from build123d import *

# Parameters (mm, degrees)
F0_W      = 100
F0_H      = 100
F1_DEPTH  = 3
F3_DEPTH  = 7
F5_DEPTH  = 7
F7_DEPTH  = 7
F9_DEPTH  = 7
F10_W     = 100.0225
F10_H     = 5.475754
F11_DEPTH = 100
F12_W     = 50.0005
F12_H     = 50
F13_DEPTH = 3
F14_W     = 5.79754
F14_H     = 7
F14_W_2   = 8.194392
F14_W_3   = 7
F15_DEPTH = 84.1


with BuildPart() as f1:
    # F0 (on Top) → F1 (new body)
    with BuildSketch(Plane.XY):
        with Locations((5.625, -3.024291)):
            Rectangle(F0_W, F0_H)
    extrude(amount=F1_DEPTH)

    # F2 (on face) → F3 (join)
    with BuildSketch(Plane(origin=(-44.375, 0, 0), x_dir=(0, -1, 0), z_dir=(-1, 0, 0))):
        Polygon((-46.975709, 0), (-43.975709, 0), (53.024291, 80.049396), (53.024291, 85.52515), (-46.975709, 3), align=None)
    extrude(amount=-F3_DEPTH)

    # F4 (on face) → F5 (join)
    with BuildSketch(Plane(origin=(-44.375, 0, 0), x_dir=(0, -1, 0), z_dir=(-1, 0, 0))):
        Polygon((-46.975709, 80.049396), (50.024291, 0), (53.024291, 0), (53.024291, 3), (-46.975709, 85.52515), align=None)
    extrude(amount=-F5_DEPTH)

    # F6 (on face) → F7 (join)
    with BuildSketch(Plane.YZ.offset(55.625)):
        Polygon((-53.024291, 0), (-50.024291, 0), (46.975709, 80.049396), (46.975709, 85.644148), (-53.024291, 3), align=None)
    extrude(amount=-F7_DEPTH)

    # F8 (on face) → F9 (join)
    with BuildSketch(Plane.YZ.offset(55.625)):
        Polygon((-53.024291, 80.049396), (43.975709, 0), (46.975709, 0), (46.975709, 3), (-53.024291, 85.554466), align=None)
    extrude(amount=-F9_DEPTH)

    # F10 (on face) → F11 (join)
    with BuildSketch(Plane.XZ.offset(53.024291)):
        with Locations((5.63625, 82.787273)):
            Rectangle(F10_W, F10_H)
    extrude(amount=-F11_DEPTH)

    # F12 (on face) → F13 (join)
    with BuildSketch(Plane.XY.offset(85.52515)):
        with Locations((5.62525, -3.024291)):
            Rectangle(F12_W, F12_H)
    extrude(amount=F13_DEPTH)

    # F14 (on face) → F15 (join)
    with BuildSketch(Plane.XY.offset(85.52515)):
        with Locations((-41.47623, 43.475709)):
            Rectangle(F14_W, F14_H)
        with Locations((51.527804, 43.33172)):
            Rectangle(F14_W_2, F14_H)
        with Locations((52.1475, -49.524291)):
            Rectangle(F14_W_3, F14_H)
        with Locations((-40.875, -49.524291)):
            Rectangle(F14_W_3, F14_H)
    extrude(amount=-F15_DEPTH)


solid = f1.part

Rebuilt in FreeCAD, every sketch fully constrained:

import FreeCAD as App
import Part
import Sketcher
from FreeCAD import Vector


def add_polygon(sketch, points):
    """Adds a closed chain of lines whose ends are joined by coincident constraints."""
    first, n = sketch.GeometryCount, len(points)
    for a, b in zip(points, points[1:] + points[:1]):
        sketch.addGeometry(Part.LineSegment(App.Vector(*a, 0), App.Vector(*b, 0)), False)
    for i in range(n):
        sketch.addConstraint(Sketcher.Constraint("Coincident", first + i, 2, first + (i + 1) % n, 1))

doc = App.newDocument("Part")
body = doc.addObject("PartDesign::Body", "Body")

sketch1 = body.newObject("Sketcher::SketchObject", "Sketch")
sketch1.AttachmentSupport = (doc.getObject("XY_Plane"), [""])
sketch1.MapMode = "FlatFace"
add_polygon(sketch1, [(-44, 47), (-44, -53), (56, -53), (56, 47)])
sketch1.addConstraint([
    Sketcher.Constraint("Vertical", 0),
    Sketcher.Constraint("Horizontal", 1),
    Sketcher.Constraint("Vertical", 2),
    Sketcher.Constraint("Horizontal", 3),
    Sketcher.Constraint("Equal", 3, 0),
    Sketcher.Constraint("DistanceX", 1, 1, 1, 2, 100.0),
    Sketcher.Constraint("DistanceX", 0, 2, -1, 1, 44.375),
    Sketcher.Constraint("DistanceY", 0, 2, -1, 1, 53.024291),
])
pad1 = body.newObject("PartDesign::Pad", "Pad")
pad1.Profile = sketch1
pad1.Length = 3

sketch2 = body.newObject("Sketcher::SketchObject", "Sketch001")
sketch2.AttachmentSupport = (doc.getObject("YZ_Plane"), [""])
sketch2.MapMode = "FlatFace"
sketch2.AttachmentOffset = App.Placement(Vector(0, 0, -44.375), App.Rotation())
add_polygon(sketch2, [(47, 0), (44, 0), (-53, 80), (-53, 85.5), (47, 3)])
sketch2.addConstraint([
    Sketcher.Constraint("Horizontal", 0),
    Sketcher.Constraint("Vertical", 2),
    Sketcher.Constraint("Vertical", 4),
    Sketcher.Constraint("PointOnObject", 0, 2, -1),
    Sketcher.Constraint("Parallel", 1, 3),
    Sketcher.Constraint("Equal", 0, 4),
    Sketcher.Constraint("DistanceX", 0, 2, 0, 1, 3.0),
    Sketcher.Constraint("DistanceX", 1, 2, 0, 2, 97.0),
    Sketcher.Constraint("Distance", 1, 125.765281),
    Sketcher.Constraint("DistanceX", -1, 1, 0, 2, 43.975709),
])
pad2 = body.newObject("PartDesign::Pad", "Pad001")
pad2.Profile = sketch2
pad2.Length = 7

sketch3 = body.newObject("Sketcher::SketchObject", "Sketch002")
sketch3.AttachmentSupport = (doc.getObject("YZ_Plane"), [""])
sketch3.MapMode = "FlatFace"
sketch3.AttachmentOffset = App.Placement(Vector(0, 0, -44.375), App.Rotation())
add_polygon(sketch3, [(47, 80), (-50, 0), (-53, 0), (-53, 3), (47, 85.5)])
sketch3.addConstraint([
    Sketcher.Constraint("Horizontal", 1),
    Sketcher.Constraint("Vertical", 2),
    Sketcher.Constraint("Vertical", 4),
    Sketcher.Constraint("PointOnObject", 0, 2, -1),
    Sketcher.Constraint("Parallel", 0, 3),
    Sketcher.Constraint("Equal", 1, 2),
    Sketcher.Constraint("DistanceX", 1, 2, 1, 1, 3.0),
    Sketcher.Constraint("DistanceX", 0, 2, 3, 2, 97.0),
    Sketcher.Constraint("Distance", 0, 125.765281),
    Sketcher.Constraint("DistanceX", 0, 2, -1, 1, 50.024291),
])
pad3 = body.newObject("PartDesign::Pad", "Pad002")
pad3.Profile = sketch3
pad3.Length = 7

sketch4 = body.newObject("Sketcher::SketchObject", "Sketch003")
sketch4.AttachmentSupport = (doc.getObject("YZ_Plane"), [""])
sketch4.MapMode = "FlatFace"
sketch4.AttachmentOffset = App.Placement(Vector(0, 0, 55.625), App.Rotation())
add_polygon(sketch4, [(-53, 0), (-50, 0), (47, 80), (47, 85.6), (-53, 3)])
sketch4.addConstraint([
    Sketcher.Constraint("Horizontal", 0),
    Sketcher.Constraint("Vertical", 2),
    Sketcher.Constraint("Vertical", 4),
    Sketcher.Constraint("PointOnObject", 0, 2, -1),
    Sketcher.Constraint("Equal", 0, 4),
    Sketcher.Constraint("DistanceX", 0, 1, 0, 2, 3.0),
    Sketcher.Constraint("DistanceX", 0, 2, 1, 2, 97.0),
    Sketcher.Constraint("DistanceY", 2, 1, 2, 2, 5.594752),
    Sketcher.Constraint("Distance", 1, 125.765281),
    Sketcher.Constraint("DistanceX", 0, 2, -1, 1, 50.024291),
])
pad4 = body.newObject("PartDesign::Pad", "Pad003")
pad4.Profile = sketch4
pad4.Length = 7
pad4.Reversed = True

sketch5 = body.newObject("Sketcher::SketchObject", "Sketch004")
sketch5.AttachmentSupport = (doc.getObject("YZ_Plane"), [""])
sketch5.MapMode = "FlatFace"
sketch5.AttachmentOffset = App.Placement(Vector(0, 0, 55.625), App.Rotation())
add_polygon(sketch5, [(-53, 80), (44, 0), (47, 0), (47, 3), (-53, 85.6)])
sketch5.addConstraint([
    Sketcher.Constraint("Horizontal", 1),
    Sketcher.Constraint("Vertical", 2),
    Sketcher.Constraint("Vertical", 4),
    Sketcher.Constraint("PointOnObject", 0, 2, -1),
    Sketcher.Constraint("Equal", 1, 2),
    Sketcher.Constraint("DistanceX", 1, 1, 1, 2, 3.0),
    Sketcher.Constraint("DistanceX", 3, 2, 0, 2, 97.0),
    Sketcher.Constraint("DistanceY", 4, 2, 4, 1, 5.50507),
    Sketcher.Constraint("Distance", 0, 125.765281),
    Sketcher.Constraint("DistanceX", -1, 1, 0, 2, 43.975709),
])
pad5 = body.newObject("PartDesign::Pad", "Pad004")
pad5.Profile = sketch5
pad5.Length = 7
pad5.Reversed = True

sketch6 = body.newObject("Sketcher::SketchObject", "Sketch005")
sketch6.AttachmentSupport = (doc.getObject("XZ_Plane"), [""])
sketch6.MapMode = "FlatFace"
sketch6.AttachmentOffset = App.Placement(Vector(0, 0, 53.024291), App.Rotation())
add_polygon(sketch6, [(-44, 86), (-44, 80), (56, 80), (56, 86)])
sketch6.addConstraint([
    Sketcher.Constraint("Vertical", 0),
    Sketcher.Constraint("Horizontal", 1),
    Sketcher.Constraint("Vertical", 2),
    Sketcher.Constraint("Horizontal", 3),
    Sketcher.Constraint("DistanceX", 1, 1, 1, 2, 100.0225),
    Sketcher.Constraint("DistanceX", 0, 2, -1, 1, 44.375),
    Sketcher.Constraint("DistanceY", 0, 2, 0, 1, 5.475754),
    Sketcher.Constraint("DistanceY", -1, 1, 2, 2, 85.52515),
])
pad6 = body.newObject("PartDesign::Pad", "Pad005")
pad6.Profile = sketch6
pad6.Length = 100
pad6.Reversed = True

sketch7 = body.newObject("Sketcher::SketchObject", "Sketch006")
sketch7.AttachmentSupport = (doc.getObject("XY_Plane"), [""])
sketch7.MapMode = "FlatFace"
sketch7.AttachmentOffset = App.Placement(Vector(0, 0, 85.52515), App.Rotation())
add_polygon(sketch7, [(-19, 22), (-19, -28), (31, -28), (31, 22)])
sketch7.addConstraint([
    Sketcher.Constraint("Vertical", 0),
    Sketcher.Constraint("Horizontal", 1),
    Sketcher.Constraint("Vertical", 2),
    Sketcher.Constraint("Horizontal", 3),
    Sketcher.Constraint("DistanceY", 0, 2, 0, 1, 50.0),
    Sketcher.Constraint("DistanceX", 1, 1, 1, 2, 50.0005),
    Sketcher.Constraint("DistanceX", 0, 2, -1, 1, 19.375),
    Sketcher.Constraint("DistanceY", 0, 2, -1, 1, 28.024291),
])
pad7 = body.newObject("PartDesign::Pad", "Pad006")
pad7.Profile = sketch7
pad7.Length = 3

sketch8 = body.newObject("Sketcher::SketchObject", "Sketch007")
sketch8.AttachmentSupport = (doc.getObject("XY_Plane"), [""])
sketch8.MapMode = "FlatFace"
sketch8.AttachmentOffset = App.Placement(Vector(0, 0, 85.52515), App.Rotation())
add_polygon(sketch8, [(-44, 47), (-44, 40), (-39, 40), (-39, 47)])
add_polygon(sketch8, [(47, 47), (47, 40), (56, 40), (56, 47)])
add_polygon(sketch8, [(49, -46), (49, -53), (56, -53), (56, -46)])
add_polygon(sketch8, [(-44, -46), (-44, -53), (-37, -53), (-37, -46)])
sketch8.addConstraint([
    Sketcher.Constraint("Vertical", 0),
    Sketcher.Constraint("Horizontal", 1),
    Sketcher.Constraint("Vertical", 2),
    Sketcher.Constraint("Horizontal", 3),
    Sketcher.Constraint("Vertical", 4),
    Sketcher.Constraint("Horizontal", 5),
    Sketcher.Constraint("Vertical", 6),
    Sketcher.Constraint("Horizontal", 7),
    Sketcher.Constraint("Vertical", 8),
    Sketcher.Constraint("Horizontal", 9),
    Sketcher.Constraint("Vertical", 10),
    Sketcher.Constraint("Horizontal", 11),
    Sketcher.Constraint("Vertical", 12),
    Sketcher.Constraint("Horizontal", 13),
    Sketcher.Constraint("Vertical", 14),
    Sketcher.Constraint("Horizontal", 15),
    Sketcher.Constraint("Horizontal", 9, 2, 12, 2),
    Sketcher.Constraint("Horizontal", 11, 2, 14, 2),
    Sketcher.Constraint("Vertical", 3, 2, 12, 2),
    Sketcher.Constraint("Equal", 11, 13),
    Sketcher.Constraint("Equal", 15, 0),
    Sketcher.Constraint("Equal", 2, 4),
    Sketcher.Constraint("Equal", 6, 8),
    Sketcher.Constraint("DistanceX", 9, 1, 9, 2, 7.0),
    Sketcher.Constraint("DistanceX", 0, 2, 5, 2, 100.0),
    Sketcher.Constraint("DistanceY", 8, 2, 1, 2, 93.0),
    Sketcher.Constraint("DistanceX", 0, 2, -1, 1, 44.375),
    Sketcher.Constraint("DistanceX", 1, 1, 1, 2, 5.79754),
    Sketcher.Constraint("DistanceX", -1, 1, 8, 2, 48.6475),
    Sketcher.Constraint("DistanceX", 5, 1, 5, 2, 8.194392),
    Sketcher.Constraint("DistanceY", -1, 1, 0, 2, 39.975709),
    Sketcher.Constraint("DistanceY", -1, 1, 4, 2, 39.83172),
])
pad8 = body.newObject("PartDesign::Pad", "Pad007")
pad8.Profile = sketch8
pad8.Length = 84.1
pad8.Reversed = True

doc.recompute()
